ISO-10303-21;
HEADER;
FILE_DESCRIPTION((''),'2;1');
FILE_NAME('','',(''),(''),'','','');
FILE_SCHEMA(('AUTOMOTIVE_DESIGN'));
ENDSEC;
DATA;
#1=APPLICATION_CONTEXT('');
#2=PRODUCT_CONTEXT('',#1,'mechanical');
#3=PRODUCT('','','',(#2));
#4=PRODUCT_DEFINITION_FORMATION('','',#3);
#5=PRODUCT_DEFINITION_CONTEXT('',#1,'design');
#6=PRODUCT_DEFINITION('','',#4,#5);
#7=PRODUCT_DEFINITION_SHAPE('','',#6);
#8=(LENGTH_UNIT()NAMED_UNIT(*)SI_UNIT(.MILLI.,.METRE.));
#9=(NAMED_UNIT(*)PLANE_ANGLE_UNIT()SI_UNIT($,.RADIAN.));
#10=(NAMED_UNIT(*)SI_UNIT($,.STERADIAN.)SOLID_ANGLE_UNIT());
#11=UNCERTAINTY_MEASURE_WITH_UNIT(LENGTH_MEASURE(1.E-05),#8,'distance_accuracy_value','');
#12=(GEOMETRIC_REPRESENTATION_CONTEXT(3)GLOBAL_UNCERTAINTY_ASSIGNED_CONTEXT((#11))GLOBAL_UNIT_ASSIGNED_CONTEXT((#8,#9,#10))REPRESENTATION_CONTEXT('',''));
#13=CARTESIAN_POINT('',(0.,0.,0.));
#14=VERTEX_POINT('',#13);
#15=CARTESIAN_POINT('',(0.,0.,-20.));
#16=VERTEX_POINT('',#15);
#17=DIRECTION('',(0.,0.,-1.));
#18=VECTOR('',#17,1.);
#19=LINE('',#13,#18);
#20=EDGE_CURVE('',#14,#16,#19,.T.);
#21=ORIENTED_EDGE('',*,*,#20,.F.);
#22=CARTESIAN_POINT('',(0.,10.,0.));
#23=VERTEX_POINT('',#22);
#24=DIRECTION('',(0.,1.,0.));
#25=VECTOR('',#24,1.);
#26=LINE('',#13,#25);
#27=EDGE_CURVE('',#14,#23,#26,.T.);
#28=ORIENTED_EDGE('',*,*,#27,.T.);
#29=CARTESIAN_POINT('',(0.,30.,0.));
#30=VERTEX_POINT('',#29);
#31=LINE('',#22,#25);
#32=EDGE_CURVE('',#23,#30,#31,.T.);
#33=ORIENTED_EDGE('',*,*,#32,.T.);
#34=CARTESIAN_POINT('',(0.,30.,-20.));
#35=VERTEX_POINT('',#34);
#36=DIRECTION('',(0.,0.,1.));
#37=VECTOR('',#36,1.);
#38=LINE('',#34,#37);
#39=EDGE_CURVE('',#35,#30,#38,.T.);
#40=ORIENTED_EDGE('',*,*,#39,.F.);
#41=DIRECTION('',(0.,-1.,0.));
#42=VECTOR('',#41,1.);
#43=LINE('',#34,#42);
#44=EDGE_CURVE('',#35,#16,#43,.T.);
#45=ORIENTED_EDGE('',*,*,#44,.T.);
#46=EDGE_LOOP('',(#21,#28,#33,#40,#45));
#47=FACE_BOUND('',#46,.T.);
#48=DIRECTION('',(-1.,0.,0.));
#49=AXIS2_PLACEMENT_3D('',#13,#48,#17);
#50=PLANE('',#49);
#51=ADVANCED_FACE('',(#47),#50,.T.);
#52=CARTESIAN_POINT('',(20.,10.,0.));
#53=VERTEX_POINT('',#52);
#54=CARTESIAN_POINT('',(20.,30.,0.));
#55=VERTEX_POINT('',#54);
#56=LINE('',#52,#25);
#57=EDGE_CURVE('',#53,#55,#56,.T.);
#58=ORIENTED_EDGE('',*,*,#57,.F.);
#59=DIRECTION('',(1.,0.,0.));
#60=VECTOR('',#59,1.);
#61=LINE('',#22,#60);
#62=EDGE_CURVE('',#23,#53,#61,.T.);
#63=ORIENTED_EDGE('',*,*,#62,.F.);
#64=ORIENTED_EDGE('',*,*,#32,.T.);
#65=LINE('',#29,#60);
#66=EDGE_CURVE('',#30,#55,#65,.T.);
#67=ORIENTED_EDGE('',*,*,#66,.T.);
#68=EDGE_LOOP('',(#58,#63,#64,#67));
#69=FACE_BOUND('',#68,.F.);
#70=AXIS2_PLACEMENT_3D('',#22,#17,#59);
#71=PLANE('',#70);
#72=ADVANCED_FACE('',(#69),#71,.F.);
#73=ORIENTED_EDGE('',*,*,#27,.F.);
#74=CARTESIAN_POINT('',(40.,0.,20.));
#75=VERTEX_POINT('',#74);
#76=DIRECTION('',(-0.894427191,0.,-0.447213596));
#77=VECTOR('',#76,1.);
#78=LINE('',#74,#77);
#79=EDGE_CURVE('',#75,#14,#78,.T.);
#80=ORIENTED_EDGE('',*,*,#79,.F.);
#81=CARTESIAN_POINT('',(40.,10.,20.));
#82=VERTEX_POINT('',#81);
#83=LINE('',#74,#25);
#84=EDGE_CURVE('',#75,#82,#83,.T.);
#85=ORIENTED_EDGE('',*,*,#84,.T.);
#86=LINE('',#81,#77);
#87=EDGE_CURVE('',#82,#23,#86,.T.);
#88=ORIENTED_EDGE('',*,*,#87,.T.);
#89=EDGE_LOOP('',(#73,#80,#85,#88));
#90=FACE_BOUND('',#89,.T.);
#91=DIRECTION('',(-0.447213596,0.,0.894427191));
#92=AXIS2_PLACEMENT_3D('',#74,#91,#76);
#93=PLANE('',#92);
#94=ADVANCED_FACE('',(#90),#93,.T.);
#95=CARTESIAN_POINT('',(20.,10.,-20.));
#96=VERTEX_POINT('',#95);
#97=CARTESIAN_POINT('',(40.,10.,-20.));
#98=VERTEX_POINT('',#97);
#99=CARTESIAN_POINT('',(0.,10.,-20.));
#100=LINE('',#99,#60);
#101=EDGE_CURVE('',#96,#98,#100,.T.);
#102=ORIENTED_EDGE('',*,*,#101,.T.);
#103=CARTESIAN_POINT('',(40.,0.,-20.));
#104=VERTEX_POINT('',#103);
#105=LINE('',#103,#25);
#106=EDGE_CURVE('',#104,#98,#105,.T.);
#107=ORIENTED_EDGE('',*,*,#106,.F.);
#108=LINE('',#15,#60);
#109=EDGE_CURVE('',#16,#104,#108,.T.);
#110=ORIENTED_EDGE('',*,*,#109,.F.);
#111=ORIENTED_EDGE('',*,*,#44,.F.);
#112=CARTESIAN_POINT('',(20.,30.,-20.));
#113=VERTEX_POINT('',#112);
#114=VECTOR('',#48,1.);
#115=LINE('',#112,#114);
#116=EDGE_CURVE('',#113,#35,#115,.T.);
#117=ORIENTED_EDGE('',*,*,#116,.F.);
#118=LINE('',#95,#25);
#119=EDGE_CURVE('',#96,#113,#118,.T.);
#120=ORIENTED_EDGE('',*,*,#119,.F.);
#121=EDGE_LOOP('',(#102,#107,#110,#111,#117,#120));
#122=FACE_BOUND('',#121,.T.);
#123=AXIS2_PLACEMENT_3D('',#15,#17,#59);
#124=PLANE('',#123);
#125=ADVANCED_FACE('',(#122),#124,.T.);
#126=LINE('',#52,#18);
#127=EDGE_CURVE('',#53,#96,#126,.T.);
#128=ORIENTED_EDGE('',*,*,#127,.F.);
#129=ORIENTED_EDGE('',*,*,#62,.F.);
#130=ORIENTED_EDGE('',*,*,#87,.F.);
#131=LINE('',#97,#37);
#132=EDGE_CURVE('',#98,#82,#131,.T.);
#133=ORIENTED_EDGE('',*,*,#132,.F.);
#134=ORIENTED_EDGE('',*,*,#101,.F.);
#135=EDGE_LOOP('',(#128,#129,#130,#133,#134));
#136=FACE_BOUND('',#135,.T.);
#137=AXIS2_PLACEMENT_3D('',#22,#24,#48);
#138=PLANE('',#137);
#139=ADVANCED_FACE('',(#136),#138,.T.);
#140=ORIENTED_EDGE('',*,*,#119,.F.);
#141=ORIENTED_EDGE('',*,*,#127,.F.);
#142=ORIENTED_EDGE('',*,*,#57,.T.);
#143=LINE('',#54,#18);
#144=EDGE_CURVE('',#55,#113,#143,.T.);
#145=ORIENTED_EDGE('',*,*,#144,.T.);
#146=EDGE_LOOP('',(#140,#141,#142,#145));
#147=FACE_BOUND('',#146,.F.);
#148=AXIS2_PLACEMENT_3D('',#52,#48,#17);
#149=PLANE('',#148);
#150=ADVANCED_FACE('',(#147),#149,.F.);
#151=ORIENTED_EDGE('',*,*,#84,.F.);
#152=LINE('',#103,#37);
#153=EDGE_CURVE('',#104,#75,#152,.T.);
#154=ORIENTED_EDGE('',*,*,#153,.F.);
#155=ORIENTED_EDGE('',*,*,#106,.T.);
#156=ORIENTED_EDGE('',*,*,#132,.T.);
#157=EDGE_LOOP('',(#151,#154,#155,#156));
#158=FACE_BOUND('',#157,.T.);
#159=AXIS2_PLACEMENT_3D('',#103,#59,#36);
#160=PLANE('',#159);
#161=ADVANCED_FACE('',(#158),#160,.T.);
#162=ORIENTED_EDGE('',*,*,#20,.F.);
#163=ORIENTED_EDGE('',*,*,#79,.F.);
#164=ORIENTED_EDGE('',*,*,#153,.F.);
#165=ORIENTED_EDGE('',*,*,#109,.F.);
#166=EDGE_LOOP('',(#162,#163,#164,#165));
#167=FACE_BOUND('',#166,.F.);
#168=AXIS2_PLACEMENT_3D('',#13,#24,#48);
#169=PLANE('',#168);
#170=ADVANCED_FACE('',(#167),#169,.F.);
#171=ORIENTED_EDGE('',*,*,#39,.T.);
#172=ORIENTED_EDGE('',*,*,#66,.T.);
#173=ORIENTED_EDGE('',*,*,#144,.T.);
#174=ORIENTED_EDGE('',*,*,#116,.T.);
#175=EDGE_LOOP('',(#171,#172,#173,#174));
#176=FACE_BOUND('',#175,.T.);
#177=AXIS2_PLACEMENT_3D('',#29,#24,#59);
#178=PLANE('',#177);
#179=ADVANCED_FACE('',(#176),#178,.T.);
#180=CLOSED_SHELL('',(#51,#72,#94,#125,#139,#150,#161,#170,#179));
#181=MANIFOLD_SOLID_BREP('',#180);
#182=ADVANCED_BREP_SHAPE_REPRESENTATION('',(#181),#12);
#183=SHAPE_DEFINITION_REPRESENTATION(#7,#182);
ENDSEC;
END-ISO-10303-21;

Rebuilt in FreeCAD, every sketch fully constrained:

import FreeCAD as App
import Part
import Sketcher

V = App.Vector

doc = App.newDocument("Part")
body = doc.addObject("PartDesign::Body", "Body")

# Sketch on XZ plane
sketch1 = doc.addObject("Sketcher::SketchObject", "Sketch")
body.addObject(sketch1)
sketch1.AttachmentSupport = (doc.XZ_Plane, [""])
sketch1.MapMode = "FlatFace"
sketch1.addGeometry([
    Part.LineSegment(V(0, -20, 0), V(0, 0, 0)),
    Part.LineSegment(V(0, 0, 0), V(40, 20, 0)),
    Part.LineSegment(V(40, 20, 0), V(40, -20, 0)),
    Part.LineSegment(V(40, -20, 0), V(0, -20, 0)),
], False)
sketch1.addConstraint([
    Sketcher.Constraint("Coincident", 0, 2, 1, 1),
    Sketcher.Constraint("Coincident", 1, 2, 2, 1),
    Sketcher.Constraint("Coincident", 2, 2, 3, 1),
    Sketcher.Constraint("Coincident", 3, 2, 0, 1),
    Sketcher.Constraint("Vertical", 0),
    Sketcher.Constraint("Vertical", 2),
    Sketcher.Constraint("Horizontal", 3),
    Sketcher.Constraint("Coincident", 0, 2, -1, 1),
    Sketcher.Constraint("Equal", 3, 2),
    Sketcher.Constraint("DistanceX", 3, 2, 3, 1, 40.0),
    Sketcher.Constraint("DistanceY", 0, 1, 0, 2, 20.0),
])
pad1 = doc.addObject("PartDesign::Pad", "Pad")
body.addObject(pad1)
pad1.Profile = sketch1
pad1.Length = 10
pad1.Reversed = True

# Sketch on XZ plane
sketch2 = doc.addObject("Sketcher::SketchObject", "Sketch001")
body.addObject(sketch2)
sketch2.AttachmentSupport = (doc.XZ_Plane, [""])
sketch2.MapMode = "FlatFace"
sketch2.AttachmentOffset = App.Placement(V(0, 0, -10), App.Rotation())
sketch2.addGeometry([
    Part.LineSegment(V(0, -20, 0), V(0, 0, 0)),
    Part.LineSegment(V(0, 0, 0), V(20, 0, 0)),
    Part.LineSegment(V(20, 0, 0), V(20, -20, 0)),
    Part.LineSegment(V(20, -20, 0), V(0, -20, 0)),
], False)
sketch2.addConstraint([
    Sketcher.Constraint("Coincident", 0, 2, 1, 1),
    Sketcher.Constraint("Coincident", 1, 2, 2, 1),
    Sketcher.Constraint("Coincident", 2, 2, 3, 1),
    Sketcher.Constraint("Coincident", 3, 2, 0, 1),
    Sketcher.Constraint("Vertical", 0),
    Sketcher.Constraint("Horizontal", 1),
    Sketcher.Constraint("Vertical", 2),
    Sketcher.Constraint("Horizontal", 3),
    Sketcher.Constraint("Coincident", 0, 2, -1, 1),
    Sketcher.Constraint("Equal", 3, 0),
    Sketcher.Constraint("DistanceX", 1, 1, 1, 2, 20.0),
])
pad2 = doc.addObject("PartDesign::Pad", "Pad001")
body.addObject(pad2)
pad2.Profile = sketch2
pad2.Length = 20
pad2.Reversed = True

doc.recompute()
